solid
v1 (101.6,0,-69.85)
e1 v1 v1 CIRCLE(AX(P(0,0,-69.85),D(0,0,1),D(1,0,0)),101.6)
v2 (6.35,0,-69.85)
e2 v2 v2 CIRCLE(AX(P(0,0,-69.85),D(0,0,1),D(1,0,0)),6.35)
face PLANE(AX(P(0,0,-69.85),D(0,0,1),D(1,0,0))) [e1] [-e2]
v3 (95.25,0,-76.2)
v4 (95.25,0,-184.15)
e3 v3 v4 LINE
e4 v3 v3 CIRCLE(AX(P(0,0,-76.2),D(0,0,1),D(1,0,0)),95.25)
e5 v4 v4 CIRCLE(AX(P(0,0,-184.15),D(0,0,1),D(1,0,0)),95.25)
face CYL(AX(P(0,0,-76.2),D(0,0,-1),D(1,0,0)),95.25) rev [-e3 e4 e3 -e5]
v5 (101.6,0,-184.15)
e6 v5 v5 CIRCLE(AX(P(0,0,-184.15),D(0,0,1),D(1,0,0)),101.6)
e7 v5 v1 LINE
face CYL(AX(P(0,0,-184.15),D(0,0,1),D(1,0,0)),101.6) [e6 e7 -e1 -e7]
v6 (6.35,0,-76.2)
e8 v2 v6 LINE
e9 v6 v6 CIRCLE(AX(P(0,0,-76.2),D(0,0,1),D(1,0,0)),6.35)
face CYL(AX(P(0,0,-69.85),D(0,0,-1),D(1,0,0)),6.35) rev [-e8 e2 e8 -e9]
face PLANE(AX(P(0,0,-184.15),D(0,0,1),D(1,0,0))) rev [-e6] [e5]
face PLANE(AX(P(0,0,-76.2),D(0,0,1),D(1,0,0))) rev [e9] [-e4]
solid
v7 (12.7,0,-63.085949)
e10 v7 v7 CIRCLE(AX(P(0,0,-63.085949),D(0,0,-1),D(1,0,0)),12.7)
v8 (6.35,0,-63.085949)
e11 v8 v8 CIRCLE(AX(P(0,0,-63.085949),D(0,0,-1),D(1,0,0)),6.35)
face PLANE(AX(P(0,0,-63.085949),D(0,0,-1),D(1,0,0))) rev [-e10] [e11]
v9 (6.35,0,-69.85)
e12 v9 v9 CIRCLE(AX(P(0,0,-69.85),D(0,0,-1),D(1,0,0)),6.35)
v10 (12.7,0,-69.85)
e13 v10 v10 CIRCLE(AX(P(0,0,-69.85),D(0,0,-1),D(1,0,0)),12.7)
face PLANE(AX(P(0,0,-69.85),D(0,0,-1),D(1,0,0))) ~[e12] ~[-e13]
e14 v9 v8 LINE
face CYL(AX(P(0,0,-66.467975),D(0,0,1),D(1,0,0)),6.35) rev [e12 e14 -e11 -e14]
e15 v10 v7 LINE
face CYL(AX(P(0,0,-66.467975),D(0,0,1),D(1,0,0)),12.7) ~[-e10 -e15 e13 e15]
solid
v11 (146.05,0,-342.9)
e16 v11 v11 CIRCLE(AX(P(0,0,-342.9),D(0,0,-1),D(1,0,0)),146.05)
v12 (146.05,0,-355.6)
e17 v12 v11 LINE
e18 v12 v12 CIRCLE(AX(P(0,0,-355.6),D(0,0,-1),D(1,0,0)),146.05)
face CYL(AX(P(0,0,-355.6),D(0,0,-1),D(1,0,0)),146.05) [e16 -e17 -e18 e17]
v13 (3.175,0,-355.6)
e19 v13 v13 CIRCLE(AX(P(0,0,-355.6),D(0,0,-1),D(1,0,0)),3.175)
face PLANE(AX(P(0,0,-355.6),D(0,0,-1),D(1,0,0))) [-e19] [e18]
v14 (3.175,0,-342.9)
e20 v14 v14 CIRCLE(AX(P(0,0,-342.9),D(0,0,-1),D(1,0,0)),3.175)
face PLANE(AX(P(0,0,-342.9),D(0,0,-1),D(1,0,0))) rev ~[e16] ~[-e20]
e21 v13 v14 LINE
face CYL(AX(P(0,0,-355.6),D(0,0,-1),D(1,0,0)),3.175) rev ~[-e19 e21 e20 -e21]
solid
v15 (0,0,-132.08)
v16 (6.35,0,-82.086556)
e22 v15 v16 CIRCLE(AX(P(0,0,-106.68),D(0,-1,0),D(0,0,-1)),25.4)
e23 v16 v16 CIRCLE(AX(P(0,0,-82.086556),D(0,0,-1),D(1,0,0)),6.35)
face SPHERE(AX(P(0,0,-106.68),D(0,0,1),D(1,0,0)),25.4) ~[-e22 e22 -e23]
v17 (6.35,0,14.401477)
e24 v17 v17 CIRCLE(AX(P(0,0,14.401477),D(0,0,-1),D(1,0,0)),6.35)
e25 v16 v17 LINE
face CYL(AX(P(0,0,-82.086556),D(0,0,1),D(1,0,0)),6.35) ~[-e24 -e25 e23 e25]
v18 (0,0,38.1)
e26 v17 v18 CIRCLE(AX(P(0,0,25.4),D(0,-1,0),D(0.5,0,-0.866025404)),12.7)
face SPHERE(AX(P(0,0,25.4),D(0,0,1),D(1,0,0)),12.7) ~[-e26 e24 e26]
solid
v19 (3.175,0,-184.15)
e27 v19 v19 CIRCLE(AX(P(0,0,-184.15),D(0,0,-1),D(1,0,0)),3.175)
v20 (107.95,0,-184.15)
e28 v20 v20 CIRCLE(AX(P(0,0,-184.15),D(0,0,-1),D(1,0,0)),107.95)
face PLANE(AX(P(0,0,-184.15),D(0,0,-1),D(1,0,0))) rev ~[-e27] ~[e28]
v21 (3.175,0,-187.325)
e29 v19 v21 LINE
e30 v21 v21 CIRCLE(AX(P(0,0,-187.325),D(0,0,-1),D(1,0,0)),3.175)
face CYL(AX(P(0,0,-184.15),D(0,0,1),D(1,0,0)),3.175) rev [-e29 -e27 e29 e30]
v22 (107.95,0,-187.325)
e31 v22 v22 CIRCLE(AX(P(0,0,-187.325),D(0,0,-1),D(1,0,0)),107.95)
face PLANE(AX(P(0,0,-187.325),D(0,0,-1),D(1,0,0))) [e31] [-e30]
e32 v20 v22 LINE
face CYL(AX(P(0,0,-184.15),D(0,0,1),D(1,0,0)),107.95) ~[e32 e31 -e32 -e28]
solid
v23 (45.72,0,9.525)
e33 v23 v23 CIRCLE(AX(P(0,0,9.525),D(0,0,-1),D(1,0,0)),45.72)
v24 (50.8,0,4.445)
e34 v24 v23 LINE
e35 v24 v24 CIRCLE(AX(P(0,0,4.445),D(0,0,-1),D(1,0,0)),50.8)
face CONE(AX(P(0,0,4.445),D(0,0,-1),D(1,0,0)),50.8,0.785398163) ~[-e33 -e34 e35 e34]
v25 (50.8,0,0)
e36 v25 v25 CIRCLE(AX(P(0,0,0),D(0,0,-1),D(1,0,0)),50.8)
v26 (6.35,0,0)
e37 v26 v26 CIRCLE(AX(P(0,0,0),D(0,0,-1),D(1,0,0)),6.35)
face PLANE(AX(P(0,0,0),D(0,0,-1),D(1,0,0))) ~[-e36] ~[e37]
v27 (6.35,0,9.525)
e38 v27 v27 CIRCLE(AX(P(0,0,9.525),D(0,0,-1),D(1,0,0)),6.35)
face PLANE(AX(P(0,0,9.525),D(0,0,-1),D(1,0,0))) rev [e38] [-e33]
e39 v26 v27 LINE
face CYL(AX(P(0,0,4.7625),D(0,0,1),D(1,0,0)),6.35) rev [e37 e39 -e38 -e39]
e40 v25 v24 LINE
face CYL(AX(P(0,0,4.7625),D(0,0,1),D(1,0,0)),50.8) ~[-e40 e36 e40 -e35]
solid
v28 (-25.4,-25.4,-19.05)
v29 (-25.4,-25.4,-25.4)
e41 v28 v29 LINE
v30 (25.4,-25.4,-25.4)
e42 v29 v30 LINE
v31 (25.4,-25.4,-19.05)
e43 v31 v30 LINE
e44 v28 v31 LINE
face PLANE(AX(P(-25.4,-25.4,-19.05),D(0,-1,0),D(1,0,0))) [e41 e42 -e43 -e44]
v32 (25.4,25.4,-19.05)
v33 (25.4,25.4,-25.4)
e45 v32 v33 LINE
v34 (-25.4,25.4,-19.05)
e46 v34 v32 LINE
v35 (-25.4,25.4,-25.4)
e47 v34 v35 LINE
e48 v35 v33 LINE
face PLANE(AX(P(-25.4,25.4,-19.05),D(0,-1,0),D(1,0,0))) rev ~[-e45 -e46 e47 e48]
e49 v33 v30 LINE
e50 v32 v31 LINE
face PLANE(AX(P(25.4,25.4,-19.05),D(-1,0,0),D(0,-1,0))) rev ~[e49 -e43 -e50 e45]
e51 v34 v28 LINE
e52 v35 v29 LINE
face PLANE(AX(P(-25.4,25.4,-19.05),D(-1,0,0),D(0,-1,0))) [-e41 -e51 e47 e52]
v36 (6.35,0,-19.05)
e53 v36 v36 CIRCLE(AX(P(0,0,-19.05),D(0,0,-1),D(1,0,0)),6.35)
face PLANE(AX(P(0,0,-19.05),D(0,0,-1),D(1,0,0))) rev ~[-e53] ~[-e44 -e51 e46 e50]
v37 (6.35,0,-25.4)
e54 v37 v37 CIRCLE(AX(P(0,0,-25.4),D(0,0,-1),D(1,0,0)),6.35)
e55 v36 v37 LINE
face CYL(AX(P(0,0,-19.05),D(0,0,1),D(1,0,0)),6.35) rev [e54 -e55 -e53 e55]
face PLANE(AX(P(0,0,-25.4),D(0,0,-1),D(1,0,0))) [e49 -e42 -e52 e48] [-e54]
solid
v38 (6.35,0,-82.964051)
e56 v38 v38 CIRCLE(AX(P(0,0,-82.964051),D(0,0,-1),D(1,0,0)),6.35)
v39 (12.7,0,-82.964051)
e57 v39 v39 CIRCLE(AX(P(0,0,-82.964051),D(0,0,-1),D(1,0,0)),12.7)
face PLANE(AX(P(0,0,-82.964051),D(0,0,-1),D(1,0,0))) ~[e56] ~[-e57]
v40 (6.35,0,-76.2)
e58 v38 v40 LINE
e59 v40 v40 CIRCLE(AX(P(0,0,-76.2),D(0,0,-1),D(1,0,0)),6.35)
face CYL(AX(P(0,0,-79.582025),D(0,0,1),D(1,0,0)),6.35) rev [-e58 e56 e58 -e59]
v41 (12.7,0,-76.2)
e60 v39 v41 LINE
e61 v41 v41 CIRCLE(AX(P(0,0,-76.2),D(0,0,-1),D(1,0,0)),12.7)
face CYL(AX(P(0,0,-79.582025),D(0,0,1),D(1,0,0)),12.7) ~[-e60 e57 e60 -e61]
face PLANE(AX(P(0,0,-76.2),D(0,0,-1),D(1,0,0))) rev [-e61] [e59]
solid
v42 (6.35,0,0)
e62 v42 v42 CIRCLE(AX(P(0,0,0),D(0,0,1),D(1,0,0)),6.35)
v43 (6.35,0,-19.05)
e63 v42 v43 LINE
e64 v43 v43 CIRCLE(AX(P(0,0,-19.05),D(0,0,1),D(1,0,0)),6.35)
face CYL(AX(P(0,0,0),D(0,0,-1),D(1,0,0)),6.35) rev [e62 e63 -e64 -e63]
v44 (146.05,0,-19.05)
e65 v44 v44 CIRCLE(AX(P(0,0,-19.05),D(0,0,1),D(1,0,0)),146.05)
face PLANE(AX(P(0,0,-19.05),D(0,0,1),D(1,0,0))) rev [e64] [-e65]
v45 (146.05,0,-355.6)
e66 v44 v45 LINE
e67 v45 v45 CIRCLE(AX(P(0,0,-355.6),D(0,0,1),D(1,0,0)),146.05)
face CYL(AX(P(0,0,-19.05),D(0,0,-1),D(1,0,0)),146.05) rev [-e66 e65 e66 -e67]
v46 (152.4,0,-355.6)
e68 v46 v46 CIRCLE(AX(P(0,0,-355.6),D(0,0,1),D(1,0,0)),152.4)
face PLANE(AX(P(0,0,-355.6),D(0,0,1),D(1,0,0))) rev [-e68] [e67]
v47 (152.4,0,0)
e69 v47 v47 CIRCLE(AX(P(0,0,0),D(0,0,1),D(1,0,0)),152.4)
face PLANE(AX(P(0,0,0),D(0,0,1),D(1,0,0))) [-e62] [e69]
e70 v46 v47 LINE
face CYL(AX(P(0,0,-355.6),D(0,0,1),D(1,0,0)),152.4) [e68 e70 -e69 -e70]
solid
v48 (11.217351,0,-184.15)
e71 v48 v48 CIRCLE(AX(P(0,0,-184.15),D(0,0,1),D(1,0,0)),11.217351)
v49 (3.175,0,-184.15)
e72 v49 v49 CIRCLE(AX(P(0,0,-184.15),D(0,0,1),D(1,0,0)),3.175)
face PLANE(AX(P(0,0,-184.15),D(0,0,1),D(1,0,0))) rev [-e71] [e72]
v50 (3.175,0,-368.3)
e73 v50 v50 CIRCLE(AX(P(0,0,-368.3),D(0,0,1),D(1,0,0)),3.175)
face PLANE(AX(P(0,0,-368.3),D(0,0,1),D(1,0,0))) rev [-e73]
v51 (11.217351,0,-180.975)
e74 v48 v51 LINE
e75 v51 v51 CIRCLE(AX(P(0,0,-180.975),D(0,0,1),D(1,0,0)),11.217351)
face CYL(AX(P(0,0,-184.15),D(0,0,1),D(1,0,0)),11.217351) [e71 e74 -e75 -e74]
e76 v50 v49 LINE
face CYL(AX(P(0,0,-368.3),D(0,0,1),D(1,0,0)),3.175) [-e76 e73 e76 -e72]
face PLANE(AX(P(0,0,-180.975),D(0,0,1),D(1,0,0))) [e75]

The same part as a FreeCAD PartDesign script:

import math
import FreeCAD as App
import Part
import Sketcher

V = App.Vector
Q = App.Units.Quantity


def edges_at(feature, points):
    """Names of the edges that pass closest to the given points."""
    edges = feature.Shape.Edges
    near = lambda p: min(range(len(edges)), key=lambda i: edges[i].distToShape(Part.Vertex(*p))[0])
    return sorted({f"Edge{near(p) + 1}" for p in points})


def add_polygon(sketch, points):
    """Adds a closed chain of lines whose ends are joined by coincident constraints."""
    first, n = sketch.GeometryCount, len(points)
    for a, b in zip(points, points[1:] + points[:1]):
        sketch.addGeometry(Part.LineSegment(App.Vector(*a, 0), App.Vector(*b, 0)), False)
    for i in range(n):
        sketch.addConstraint(Sketcher.Constraint("Coincident", first + i, 2, first + (i + 1) % n, 1))

doc = App.newDocument("Part")
params = doc.addObject("Spreadsheet::Sheet", "Params")
for row, (alias, value) in enumerate([
    ("sketch1_height", "14 in"),
    ("sketch1_width", "5.5 in"),
    ("sketch1_width2", "5.75 in"),
    ("sketch1_height2", "0.75 in"),
    ("revolution_angle", "360 deg"),
    ("sketch2_width", "1.75 in"),
    ("sketch2_height", "0.375 in"),
    ("revolution2_angle", "360 deg"),
    ("chamfer_size", "0.2 in"),
    ("sketch3_radius", "1 in"),
    ("sketch3_radius2", "0.5 in"),
    ("sketch3_height", "6.7 in"),
    ("revolution3_angle", "360 deg"),
    ("sketch4_width", "3.5 in"),
    ("sketch4_height", "4.5 in"),
    ("sketch4_width2", "3.75 in"),
    ("revolution4_angle", "360 deg"),
    ("sketch5_width", "0.25 in"),
    ("revolution5_angle", "360 deg"),
    ("sketch6_width", "0.25 in"),
    ("revolution6_angle", "360 deg"),
    ("sketch7_diameter", "8.5 in"),
    ("sketch7_diameter2", "0.25 in"),
    ("pad1_length", "0.125 in"),
    ("sketch8_height", "7.25 in"),
    ("sketch8_width", "0.125 in"),
    ("revolution7_angle", "360 deg"),
    ("sketch9_diameter", "0.5 in"),
    ("sketch9_width", "2 in"),
    ("pad2_length", "0.25 in"),
    ("sketch10_diameter", "11.5 in"),
    ("sketch10_diameter2", "0.25 in"),
    ("pad3_length", "0.5 in"),
], start=1):
    params.set(f"A{row}", alias)
    params.set(f"B{row}", "=" + value)
    params.setAlias(f"B{row}", alias)

body = doc.addObject("PartDesign::Body", "Body")

# Sketch on XZ plane
sketch1 = body.newObject("Sketcher::SketchObject", "Sketch")
sketch1.AttachmentSupport = (doc.getObject("XZ_Plane"), [""])
sketch1.MapMode = "FlatFace"
add_polygon(sketch1, [(152.4, 0), (6.35, 0), (6.35, -19.05), (146.05, -19.05), (146.05, -355.6), (152.4, -355.6)])  # lines 0-5
sketch1.addConstraint([
    Sketcher.Constraint("Horizontal", 0),
    Sketcher.Constraint("Vertical", 1),
    Sketcher.Constraint("Horizontal", 2),
    Sketcher.Constraint("Vertical", 3),
    Sketcher.Constraint("Horizontal", 4),
    Sketcher.Constraint("Vertical", 5),
    Sketcher.Constraint("PointOnObject", 0, 2, -1),
    Sketcher.Constraint("DistanceY", 5, 1, 5, 2, Q("14 in")),
    Sketcher.Constraint("DistanceX", 2, 1, 2, 2, Q("5.5 in")),
    Sketcher.Constraint("DistanceX", -1, 1, 4, 2, Q("6 in")),
    Sketcher.Constraint("DistanceX", 0, 2, 0, 1, Q("5.75 in")),
    Sketcher.Constraint("DistanceY", 1, 2, 1, 1, Q("0.75 in")),
])
sketch1.setExpression("Constraints[13]", "Params.sketch1_height")
sketch1.setExpression("Constraints[14]", "Params.sketch1_width")
sketch1.setExpression("Constraints[16]", "Params.sketch1_width2")
sketch1.setExpression("Constraints[17]", "Params.sketch1_height2")
revolution = body.newObject("PartDesign::Revolution", "Revolution")
revolution.Profile = sketch1
revolution.ReferenceAxis = (sketch1, ["V_Axis"])
revolution.setExpression("Angle", "Params.revolution_angle")
body2 = doc.addObject("PartDesign::Body", "Body001")

# Sketch on XZ plane
sketch2 = body2.newObject("Sketcher::SketchObject", "Sketch001")
sketch2.AttachmentSupport = (doc.getObject("XZ_Plane001"), [""])
sketch2.MapMode = "FlatFace"
add_polygon(sketch2, [(6.35, 9.525), (6.35, 0), (50.8, 0), (50.8, 9.525)])  # lines 0-3
sketch2.addConstraint([
    Sketcher.Constraint("Vertical", 0),
    Sketcher.Constraint("Horizontal", 1),
    Sketcher.Constraint("Vertical", 2),
    Sketcher.Constraint("Horizontal", 3),
    Sketcher.Constraint("PointOnObject", 0, 2, -1),
    Sketcher.Constraint("DistanceX", -1, 1, 1, 2, Q("2 in")),
    Sketcher.Constraint("DistanceX", 1, 1, 1, 2, Q("1.75 in")),
    Sketcher.Constraint("DistanceY", 0, 2, 0, 1, Q("0.375 in")),
])
sketch2.setExpression("Constraints[10]", "Params.sketch2_width")
sketch2.setExpression("Constraints[11]", "Params.sketch2_height")
revolution2 = body2.newObject("PartDesign::Revolution", "Revolution001")
revolution2.Profile = sketch2
revolution2.ReferenceAxis = (sketch2, ["V_Axis"])
revolution2.setExpression("Angle", "Params.revolution2_angle")
doc.recompute()

chamfer = body2.newObject("PartDesign::Chamfer", "Chamfer")
chamfer.Base = (revolution2, edges_at(revolution2, [(-50.8, 0, 9.525)]))
chamfer.setExpression("Size", "Params.chamfer_size")
body3 = doc.addObject("PartDesign::Body", "Body002")

# Sketch on XZ plane
sketch3 = body3.newObject("Sketcher::SketchObject", "Sketch002")
sketch3.AttachmentSupport = (doc.getObject("XZ_Plane002"), [""])
sketch3.MapMode = "FlatFace"
sketch3.addGeometry([
    Part.ArcOfCircle(Part.Circle(V(0, -106.68, 0), V(0, 0, 1), 25.4), math.radians(-90), math.radians(75.522488)),
    Part.LineSegment(V(6.35, -82.086556, 0), V(6.35, 14.401477, 0)),
    Part.ArcOfCircle(Part.Circle(V(0, 25.4, 0), V(0, 0, 1), 12.7), math.radians(-60), math.radians(90)),
    Part.LineSegment(V(0, 38.1, 0), V(0, -132.08, 0)),
], False)
sketch3.addConstraint([
    Sketcher.Constraint("Coincident", 0, 2, 1, 1),
    Sketcher.Constraint("Coincident", 1, 2, 2, 1),
    Sketcher.Constraint("Coincident", 2, 2, 3, 1),
    Sketcher.Constraint("Coincident", 3, 2, 0, 1),
    Sketcher.Constraint("Vertical", 1),
    Sketcher.Constraint("Vertical", 3),
    Sketcher.Constraint("PointOnObject", 0, 3, -2),
    Sketcher.Constraint("PointOnObject", 2, 3, -2),
    Sketcher.Constraint("PointOnObject", 2, 2, -2),
    Sketcher.Constraint("Radius", 0, Q("1 in")),
    Sketcher.Constraint("Radius", 2, Q("0.5 in")),
    Sketcher.Constraint("DistanceY", 3, 2, 3, 1, Q("6.7 in")),
    Sketcher.Constraint("DistanceY", -1, 1, 2, 3, Q("1 in")),
    Sketcher.Constraint("DistanceX", -1, 1, 0, 2, Q("0.25 in")),
])
sketch3.setExpression("Constraints[9]", "Params.sketch3_radius")
sketch3.setExpression("Constraints[10]", "Params.sketch3_radius2")
sketch3.setExpression("Constraints[11]", "Params.sketch3_height")
revolution3 = body3.newObject("PartDesign::Revolution", "Revolution002")
revolution3.Profile = sketch3
revolution3.ReferenceAxis = (sketch3, ["V_Axis"])
revolution3.setExpression("Angle", "Params.revolution3_angle")
body4 = doc.addObject("PartDesign::Body", "Body003")

# Sketch on XZ plane
sketch4 = body4.newObject("Sketcher::SketchObject", "Sketch003")
sketch4.AttachmentSupport = (doc.getObject("XZ_Plane003"), [""])
sketch4.MapMode = "FlatFace"
add_polygon(sketch4, [(101.6, -69.85), (6.35, -69.85), (6.35, -76.2), (95.25, -76.2), (95.25, -184.15), (101.6, -184.15)])  # lines 0-5
sketch4.addConstraint([
    Sketcher.Constraint("Horizontal", 0),
    Sketcher.Constraint("Vertical", 1),
    Sketcher.Constraint("Horizontal", 2),
    Sketcher.Constraint("Vertical", 3),
    Sketcher.Constraint("Horizontal", 4),
    Sketcher.Constraint("Vertical", 5),
    Sketcher.Constraint("Equal", 4, 1),
    Sketcher.Constraint("DistanceX", 2, 1, 2, 2, Q("3.5 in")),
    Sketcher.Constraint("DistanceY", 5, 1, 5, 2, Q("4.5 in")),
    Sketcher.Constraint("DistanceY", 1, 2, -1, 1, Q("3 in")),
    Sketcher.Constraint("DistanceX", -1, 1, 4, 2, Q("4 in")),
    Sketcher.Constraint("DistanceX", 0, 2, 0, 1, Q("3.75 in")),
])
sketch4.setExpression("Constraints[13]", "Params.sketch4_width")
sketch4.setExpression("Constraints[14]", "Params.sketch4_height")
sketch4.setExpression("Constraints[17]", "Params.sketch4_width2")
revolution4 = body4.newObject("PartDesign::Revolution", "Revolution003")
revolution4.Profile = sketch4
revolution4.ReferenceAxis = (sketch4, ["V_Axis"])
revolution4.setExpression("Angle", "Params.revolution4_angle")
body5 = doc.addObject("PartDesign::Body", "Body004")

# Sketch on XZ plane
sketch5 = body5.newObject("Sketcher::SketchObject", "Sketch004")
sketch5.AttachmentSupport = (doc.getObject("XZ_Plane004"), [""])
sketch5.MapMode = "FlatFace"
add_polygon(sketch5, [(6.35, -63.085949), (6.35, -69.85), (12.7, -69.85), (12.7, -63.085949)])  # lines 0-3
sketch5.addConstraint([
    Sketcher.Constraint("Vertical", 0),
    Sketcher.Constraint("Horizontal", 1),
    Sketcher.Constraint("Vertical", 2),
    Sketcher.Constraint("Horizontal", 3),
    Sketcher.Constraint("DistanceX", 1, 1, 1, 2, Q("0.25 in")),
    Sketcher.Constraint("DistanceX", -1, 1, 1, 2, Q("0.5 in")),
    Sketcher.Constraint("DistanceY", 0, 2, -1, 1, Q("2.75 in")),
    Sketcher.Constraint("DistanceY", 0, 2, 0, 1, 6.764051),
])
sketch5.setExpression("Constraints[8]", "Params.sketch5_width")
revolution5 = body5.newObject("PartDesign::Revolution", "Revolution004")
revolution5.Profile = sketch5
revolution5.ReferenceAxis = (sketch5, ["V_Axis"])
revolution5.setExpression("Angle", "Params.revolution5_angle")
body6 = doc.addObject("PartDesign::Body", "Body005")

# Sketch on XZ plane
sketch6 = body6.newObject("Sketcher::SketchObject", "Sketch005")
sketch6.AttachmentSupport = (doc.getObject("XZ_Plane005"), [""])
sketch6.MapMode = "FlatFace"
add_polygon(sketch6, [(6.35, -76.2), (6.35, -82.964051), (12.7, -82.964051), (12.7, -76.2)])  # lines 0-3
sketch6.addConstraint([
    Sketcher.Constraint("Vertical", 0),
    Sketcher.Constraint("Horizontal", 1),
    Sketcher.Constraint("Vertical", 2),
    Sketcher.Constraint("Horizontal", 3),
    Sketcher.Constraint("DistanceY", 2, 2, -1, 1, Q("3 in")),
    Sketcher.Constraint("DistanceX", 1, 1, 1, 2, Q("0.25 in")),
    Sketcher.Constraint("DistanceX", -1, 1, 1, 2, Q("0.5 in")),
    Sketcher.Constraint("DistanceY", 0, 2, 0, 1, 6.764051),
])
sketch6.setExpression("Constraints[9]", "Params.sketch6_width")
revolution6 = body6.newObject("PartDesign::Revolution", "Revolution005")
revolution6.Profile = sketch6
revolution6.ReferenceAxis = (sketch6, ["V_Axis"])
revolution6.setExpression("Angle", "Params.revolution6_angle")
body7 = doc.addObject("PartDesign::Body", "Body006")

# Sketch on XY plane
sketch7 = body7.newObject("Sketcher::SketchObject", "Sketch006")
sketch7.AttachmentSupport = (doc.getObject("XY_Plane006"), [""])
sketch7.MapMode = "FlatFace"
sketch7.AttachmentOffset = App.Placement(V(0, 0, -7.25 * 25.4), App.Rotation())
sketch7.addGeometry([
    Part.Circle(V(0, 0, 0), V(0, 0, 1), 107.95),
    Part.Circle(V(0, 0, 0), V(0, 0, 1), 3.175),
], False)
sketch7.addConstraint([
    Sketcher.Constraint("Coincident", 0, 3, -1, 1),
    Sketcher.Constraint("Coincident", 1, 3, -1, 1),
    Sketcher.Constraint("Diameter", 0, Q("8.5 in")),
    Sketcher.Constraint("Diameter", 1, Q("0.25 in")),
])
sketch7.setExpression("Constraints[2]", "Params.sketch7_diameter")
sketch7.setExpression("Constraints[3]", "Params.sketch7_diameter2")
pad1 = body7.newObject("PartDesign::Pad", "Pad")
pad1.Profile = sketch7
pad1.setExpression("Length", "Params.pad1_length")
pad1.Reversed = True
body8 = doc.addObject("PartDesign::Body", "Body007")

# Sketch on XZ plane
sketch8 = body8.newObject("Sketcher::SketchObject", "Sketch007")
sketch8.AttachmentSupport = (doc.getObject("XZ_Plane007"), [""])
sketch8.MapMode = "FlatFace"
add_polygon(sketch8, [(11.217351, -180.975), (0, -180.975), (0, -368.3), (3.175, -368.3), (3.175, -184.15), (11.217351, -184.15)])  # lines 0-5
sketch8.addConstraint([
    Sketcher.Constraint("Horizontal", 0),
    Sketcher.Constraint("Vertical", 1),
    Sketcher.Constraint("Horizontal", 2),
    Sketcher.Constraint("Vertical", 3),
    Sketcher.Constraint("Horizontal", 4),
    Sketcher.Constraint("Vertical", 5),
    Sketcher.Constraint("PointOnObject", 0, 2, -2),
    Sketcher.Constraint("Equal", 2, 5),
    Sketcher.Constraint("DistanceY", 3, 1, 3, 2, Q("7.25 in")),
    Sketcher.Constraint("DistanceY", 1, 2, -1, 1, Q("14.5 in")),
    Sketcher.Constraint("DistanceX", 2, 1, 2, 2, Q("0.125 in")),
    Sketcher.Constraint("DistanceX", 0, 2, 0, 1, 11.217351),
])
sketch8.setExpression("Constraints[14]", "Params.sketch8_height")
sketch8.setExpression("Constraints[16]", "Params.sketch8_width")
revolution7 = body8.newObject("PartDesign::Revolution", "Revolution006")
revolution7.Profile = sketch8
revolution7.ReferenceAxis = (sketch8, ["V_Axis"])
revolution7.setExpression("Angle", "Params.revolution7_angle")
body9 = doc.addObject("PartDesign::Body", "Body008")

# Sketch on XY plane
sketch9 = body9.newObject("Sketcher::SketchObject", "Sketch008")
sketch9.AttachmentSupport = (doc.getObject("XY_Plane008"), [""])
sketch9.MapMode = "FlatFace"
sketch9.AttachmentOffset = App.Placement(V(0, 0, -0.75 * 25.4), App.Rotation())
add_polygon(sketch9, [(-25.4, -25.4), (-25.4, 25.4), (25.4, 25.4), (25.4, -25.4)])  # lines 0-3
sketch9.addGeometry(Part.Circle(V(0, 0, 0), V(0, 0, 1), 6.35), False)  # 4
sketch9.addConstraint([
    Sketcher.Constraint("Vertical", 0),
    Sketcher.Constraint("Horizontal", 1),
    Sketcher.Constraint("Vertical", 2),
    Sketcher.Constraint("Horizontal", 3),
    Sketcher.Constraint("Coincident", 4, 3, -1, 1),
    Sketcher.Constraint("Symmetric", 0, 2, 2, 2, -1, 1),
    Sketcher.Constraint("Equal", 3, 0),
    Sketcher.Constraint("Diameter", 4, Q("0.5 in")),
    Sketcher.Constraint("DistanceX", 1, 1, 1, 2, Q("2 in")),
])
sketch9.setExpression("Constraints[11]", "Params.sketch9_diameter")
sketch9.setExpression("Constraints[12]", "Params.sketch9_width")
pad2 = body9.newObject("PartDesign::Pad", "Pad001")
pad2.Profile = sketch9
pad2.setExpression("Length", "Params.pad2_length")
pad2.Reversed = True
body10 = doc.addObject("PartDesign::Body", "Body009")

# Sketch on XY plane
sketch10 = body10.newObject("Sketcher::SketchObject", "Sketch009")
sketch10.AttachmentSupport = (doc.getObject("XY_Plane009"), [""])
sketch10.MapMode = "FlatFace"
sketch10.AttachmentOffset = App.Placement(V(0, 0, -14 * 25.4), App.Rotation())
sketch10.addGeometry([
    Part.Circle(V(0, 0, 0), V(0, 0, 1), 146.05),
    Part.Circle(V(0, 0, 0), V(0, 0, 1), 3.175),
], False)
sketch10.addConstraint([
    Sketcher.Constraint("Coincident", 0, 3, -1, 1),
    Sketcher.Constraint("Coincident", 1, 3, -1, 1),
    Sketcher.Constraint("Diameter", 0, Q("11.5 in")),
    Sketcher.Constraint("Diameter", 1, Q("0.25 in")),
])
sketch10.setExpression("Constraints[2]", "Params.sketch10_diameter")
sketch10.setExpression("Constraints[3]", "Params.sketch10_diameter2")
pad3 = body10.newObject("PartDesign::Pad", "Pad002")
pad3.Profile = sketch10
pad3.setExpression("Length", "Params.pad3_length")

doc.recompute()
